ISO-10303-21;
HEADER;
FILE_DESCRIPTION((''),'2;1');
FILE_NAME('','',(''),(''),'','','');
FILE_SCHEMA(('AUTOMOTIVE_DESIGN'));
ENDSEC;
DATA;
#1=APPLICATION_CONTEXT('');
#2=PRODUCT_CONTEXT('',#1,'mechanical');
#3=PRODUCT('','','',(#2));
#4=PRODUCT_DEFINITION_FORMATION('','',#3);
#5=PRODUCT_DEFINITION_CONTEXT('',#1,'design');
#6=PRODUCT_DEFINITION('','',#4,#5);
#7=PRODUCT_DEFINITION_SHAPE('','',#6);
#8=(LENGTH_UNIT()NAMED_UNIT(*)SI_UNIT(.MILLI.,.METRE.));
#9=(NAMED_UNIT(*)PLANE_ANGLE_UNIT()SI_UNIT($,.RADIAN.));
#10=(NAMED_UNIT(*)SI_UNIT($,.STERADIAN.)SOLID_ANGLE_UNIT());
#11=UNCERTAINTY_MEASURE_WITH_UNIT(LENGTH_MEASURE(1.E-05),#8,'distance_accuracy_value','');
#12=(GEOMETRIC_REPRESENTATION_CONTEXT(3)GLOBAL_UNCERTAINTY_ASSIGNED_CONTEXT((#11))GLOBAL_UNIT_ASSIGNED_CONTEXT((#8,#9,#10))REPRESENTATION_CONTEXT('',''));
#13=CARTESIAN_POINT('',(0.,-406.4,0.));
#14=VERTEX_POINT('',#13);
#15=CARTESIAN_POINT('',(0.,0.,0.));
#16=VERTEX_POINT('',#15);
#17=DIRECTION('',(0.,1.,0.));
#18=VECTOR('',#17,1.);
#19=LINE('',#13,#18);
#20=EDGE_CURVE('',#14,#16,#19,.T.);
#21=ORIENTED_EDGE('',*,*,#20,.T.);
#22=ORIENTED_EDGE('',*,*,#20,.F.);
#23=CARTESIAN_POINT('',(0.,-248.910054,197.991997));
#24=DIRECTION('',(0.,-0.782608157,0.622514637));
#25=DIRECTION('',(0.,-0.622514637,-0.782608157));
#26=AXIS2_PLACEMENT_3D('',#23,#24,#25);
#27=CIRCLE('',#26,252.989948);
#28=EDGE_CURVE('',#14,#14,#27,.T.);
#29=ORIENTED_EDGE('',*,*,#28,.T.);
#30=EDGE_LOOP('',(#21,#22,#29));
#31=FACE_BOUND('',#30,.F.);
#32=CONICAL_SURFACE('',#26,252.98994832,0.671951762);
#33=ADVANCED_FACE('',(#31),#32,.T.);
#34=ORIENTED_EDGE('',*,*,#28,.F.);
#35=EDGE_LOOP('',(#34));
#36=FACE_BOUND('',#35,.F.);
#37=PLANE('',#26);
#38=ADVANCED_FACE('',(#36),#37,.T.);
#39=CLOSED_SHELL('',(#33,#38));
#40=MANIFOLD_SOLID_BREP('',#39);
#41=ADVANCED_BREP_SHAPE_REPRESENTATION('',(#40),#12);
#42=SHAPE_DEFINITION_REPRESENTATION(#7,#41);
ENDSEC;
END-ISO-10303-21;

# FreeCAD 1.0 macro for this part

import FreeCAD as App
import Part
import Sketcher
from FreeCAD import Vector
Q = App.Units.Quantity

doc = App.newDocument("Part")
body = doc.addObject("PartDesign::Body", "Body")

# Sketch on YZ plane
sketch1 = body.newObject("Sketcher::SketchObject", "Sketch")
sketch1.AttachmentSupport = (doc.getObject("YZ_Plane"), [""])
sketch1.MapMode = "FlatFace"
sketch1.addGeometry(Part.LineSegment(Vector(-406.4, 0, 0), Vector(0, 0, 0)), False)
sketch1.addGeometry(Part.LineSegment(Vector(0, 0, 0), Vector(-248.910054, 197.991997, 0)), False)
sketch1.addGeometry(Part.LineSegment(Vector(-248.910054, 197.991997, 0), Vector(-406.4, 0, 0)), False)
sketch1.addGeometry(Part.LineSegment(Vector(0, 0, 0), Vector(-248.910054, 197.991997, 0)), True)  # axis
sketch1.addConstraint(Sketcher.Constraint("Coincident", 0, 2, 1, 1))
sketch1.addConstraint(Sketcher.Constraint("Coincident", 1, 2, 2, 1))
sketch1.addConstraint(Sketcher.Constraint("Coincident", 2, 2, 0, 1))
sketch1.addConstraint(Sketcher.Constraint("Horizontal", 0))
sketch1.addConstraint(Sketcher.Constraint("Coincident", 0, 2, -1, 1))
sketch1.addConstraint(Sketcher.Constraint("Coincident", 3, 1, -1, 1))
sketch1.addConstraint(Sketcher.Constraint("Coincident", 3, 2, 1, 2))
sketch1.addConstraint(Sketcher.Constraint("Perpendicular", 1, 2))
sketch1.addConstraint(Sketcher.Constraint("DistanceX", 0, 1, 0, 2, Q("16 in")))
sketch1.addConstraint(Sketcher.Constraint("Angle", 1, Q("141.5 deg")))
revolution = body.newObject("PartDesign::Revolution", "Revolution")
revolution.Profile = sketch1
revolution.ReferenceAxis = (sketch1, ["Axis0"])
revolution.Angle = 360

doc.recompute()
